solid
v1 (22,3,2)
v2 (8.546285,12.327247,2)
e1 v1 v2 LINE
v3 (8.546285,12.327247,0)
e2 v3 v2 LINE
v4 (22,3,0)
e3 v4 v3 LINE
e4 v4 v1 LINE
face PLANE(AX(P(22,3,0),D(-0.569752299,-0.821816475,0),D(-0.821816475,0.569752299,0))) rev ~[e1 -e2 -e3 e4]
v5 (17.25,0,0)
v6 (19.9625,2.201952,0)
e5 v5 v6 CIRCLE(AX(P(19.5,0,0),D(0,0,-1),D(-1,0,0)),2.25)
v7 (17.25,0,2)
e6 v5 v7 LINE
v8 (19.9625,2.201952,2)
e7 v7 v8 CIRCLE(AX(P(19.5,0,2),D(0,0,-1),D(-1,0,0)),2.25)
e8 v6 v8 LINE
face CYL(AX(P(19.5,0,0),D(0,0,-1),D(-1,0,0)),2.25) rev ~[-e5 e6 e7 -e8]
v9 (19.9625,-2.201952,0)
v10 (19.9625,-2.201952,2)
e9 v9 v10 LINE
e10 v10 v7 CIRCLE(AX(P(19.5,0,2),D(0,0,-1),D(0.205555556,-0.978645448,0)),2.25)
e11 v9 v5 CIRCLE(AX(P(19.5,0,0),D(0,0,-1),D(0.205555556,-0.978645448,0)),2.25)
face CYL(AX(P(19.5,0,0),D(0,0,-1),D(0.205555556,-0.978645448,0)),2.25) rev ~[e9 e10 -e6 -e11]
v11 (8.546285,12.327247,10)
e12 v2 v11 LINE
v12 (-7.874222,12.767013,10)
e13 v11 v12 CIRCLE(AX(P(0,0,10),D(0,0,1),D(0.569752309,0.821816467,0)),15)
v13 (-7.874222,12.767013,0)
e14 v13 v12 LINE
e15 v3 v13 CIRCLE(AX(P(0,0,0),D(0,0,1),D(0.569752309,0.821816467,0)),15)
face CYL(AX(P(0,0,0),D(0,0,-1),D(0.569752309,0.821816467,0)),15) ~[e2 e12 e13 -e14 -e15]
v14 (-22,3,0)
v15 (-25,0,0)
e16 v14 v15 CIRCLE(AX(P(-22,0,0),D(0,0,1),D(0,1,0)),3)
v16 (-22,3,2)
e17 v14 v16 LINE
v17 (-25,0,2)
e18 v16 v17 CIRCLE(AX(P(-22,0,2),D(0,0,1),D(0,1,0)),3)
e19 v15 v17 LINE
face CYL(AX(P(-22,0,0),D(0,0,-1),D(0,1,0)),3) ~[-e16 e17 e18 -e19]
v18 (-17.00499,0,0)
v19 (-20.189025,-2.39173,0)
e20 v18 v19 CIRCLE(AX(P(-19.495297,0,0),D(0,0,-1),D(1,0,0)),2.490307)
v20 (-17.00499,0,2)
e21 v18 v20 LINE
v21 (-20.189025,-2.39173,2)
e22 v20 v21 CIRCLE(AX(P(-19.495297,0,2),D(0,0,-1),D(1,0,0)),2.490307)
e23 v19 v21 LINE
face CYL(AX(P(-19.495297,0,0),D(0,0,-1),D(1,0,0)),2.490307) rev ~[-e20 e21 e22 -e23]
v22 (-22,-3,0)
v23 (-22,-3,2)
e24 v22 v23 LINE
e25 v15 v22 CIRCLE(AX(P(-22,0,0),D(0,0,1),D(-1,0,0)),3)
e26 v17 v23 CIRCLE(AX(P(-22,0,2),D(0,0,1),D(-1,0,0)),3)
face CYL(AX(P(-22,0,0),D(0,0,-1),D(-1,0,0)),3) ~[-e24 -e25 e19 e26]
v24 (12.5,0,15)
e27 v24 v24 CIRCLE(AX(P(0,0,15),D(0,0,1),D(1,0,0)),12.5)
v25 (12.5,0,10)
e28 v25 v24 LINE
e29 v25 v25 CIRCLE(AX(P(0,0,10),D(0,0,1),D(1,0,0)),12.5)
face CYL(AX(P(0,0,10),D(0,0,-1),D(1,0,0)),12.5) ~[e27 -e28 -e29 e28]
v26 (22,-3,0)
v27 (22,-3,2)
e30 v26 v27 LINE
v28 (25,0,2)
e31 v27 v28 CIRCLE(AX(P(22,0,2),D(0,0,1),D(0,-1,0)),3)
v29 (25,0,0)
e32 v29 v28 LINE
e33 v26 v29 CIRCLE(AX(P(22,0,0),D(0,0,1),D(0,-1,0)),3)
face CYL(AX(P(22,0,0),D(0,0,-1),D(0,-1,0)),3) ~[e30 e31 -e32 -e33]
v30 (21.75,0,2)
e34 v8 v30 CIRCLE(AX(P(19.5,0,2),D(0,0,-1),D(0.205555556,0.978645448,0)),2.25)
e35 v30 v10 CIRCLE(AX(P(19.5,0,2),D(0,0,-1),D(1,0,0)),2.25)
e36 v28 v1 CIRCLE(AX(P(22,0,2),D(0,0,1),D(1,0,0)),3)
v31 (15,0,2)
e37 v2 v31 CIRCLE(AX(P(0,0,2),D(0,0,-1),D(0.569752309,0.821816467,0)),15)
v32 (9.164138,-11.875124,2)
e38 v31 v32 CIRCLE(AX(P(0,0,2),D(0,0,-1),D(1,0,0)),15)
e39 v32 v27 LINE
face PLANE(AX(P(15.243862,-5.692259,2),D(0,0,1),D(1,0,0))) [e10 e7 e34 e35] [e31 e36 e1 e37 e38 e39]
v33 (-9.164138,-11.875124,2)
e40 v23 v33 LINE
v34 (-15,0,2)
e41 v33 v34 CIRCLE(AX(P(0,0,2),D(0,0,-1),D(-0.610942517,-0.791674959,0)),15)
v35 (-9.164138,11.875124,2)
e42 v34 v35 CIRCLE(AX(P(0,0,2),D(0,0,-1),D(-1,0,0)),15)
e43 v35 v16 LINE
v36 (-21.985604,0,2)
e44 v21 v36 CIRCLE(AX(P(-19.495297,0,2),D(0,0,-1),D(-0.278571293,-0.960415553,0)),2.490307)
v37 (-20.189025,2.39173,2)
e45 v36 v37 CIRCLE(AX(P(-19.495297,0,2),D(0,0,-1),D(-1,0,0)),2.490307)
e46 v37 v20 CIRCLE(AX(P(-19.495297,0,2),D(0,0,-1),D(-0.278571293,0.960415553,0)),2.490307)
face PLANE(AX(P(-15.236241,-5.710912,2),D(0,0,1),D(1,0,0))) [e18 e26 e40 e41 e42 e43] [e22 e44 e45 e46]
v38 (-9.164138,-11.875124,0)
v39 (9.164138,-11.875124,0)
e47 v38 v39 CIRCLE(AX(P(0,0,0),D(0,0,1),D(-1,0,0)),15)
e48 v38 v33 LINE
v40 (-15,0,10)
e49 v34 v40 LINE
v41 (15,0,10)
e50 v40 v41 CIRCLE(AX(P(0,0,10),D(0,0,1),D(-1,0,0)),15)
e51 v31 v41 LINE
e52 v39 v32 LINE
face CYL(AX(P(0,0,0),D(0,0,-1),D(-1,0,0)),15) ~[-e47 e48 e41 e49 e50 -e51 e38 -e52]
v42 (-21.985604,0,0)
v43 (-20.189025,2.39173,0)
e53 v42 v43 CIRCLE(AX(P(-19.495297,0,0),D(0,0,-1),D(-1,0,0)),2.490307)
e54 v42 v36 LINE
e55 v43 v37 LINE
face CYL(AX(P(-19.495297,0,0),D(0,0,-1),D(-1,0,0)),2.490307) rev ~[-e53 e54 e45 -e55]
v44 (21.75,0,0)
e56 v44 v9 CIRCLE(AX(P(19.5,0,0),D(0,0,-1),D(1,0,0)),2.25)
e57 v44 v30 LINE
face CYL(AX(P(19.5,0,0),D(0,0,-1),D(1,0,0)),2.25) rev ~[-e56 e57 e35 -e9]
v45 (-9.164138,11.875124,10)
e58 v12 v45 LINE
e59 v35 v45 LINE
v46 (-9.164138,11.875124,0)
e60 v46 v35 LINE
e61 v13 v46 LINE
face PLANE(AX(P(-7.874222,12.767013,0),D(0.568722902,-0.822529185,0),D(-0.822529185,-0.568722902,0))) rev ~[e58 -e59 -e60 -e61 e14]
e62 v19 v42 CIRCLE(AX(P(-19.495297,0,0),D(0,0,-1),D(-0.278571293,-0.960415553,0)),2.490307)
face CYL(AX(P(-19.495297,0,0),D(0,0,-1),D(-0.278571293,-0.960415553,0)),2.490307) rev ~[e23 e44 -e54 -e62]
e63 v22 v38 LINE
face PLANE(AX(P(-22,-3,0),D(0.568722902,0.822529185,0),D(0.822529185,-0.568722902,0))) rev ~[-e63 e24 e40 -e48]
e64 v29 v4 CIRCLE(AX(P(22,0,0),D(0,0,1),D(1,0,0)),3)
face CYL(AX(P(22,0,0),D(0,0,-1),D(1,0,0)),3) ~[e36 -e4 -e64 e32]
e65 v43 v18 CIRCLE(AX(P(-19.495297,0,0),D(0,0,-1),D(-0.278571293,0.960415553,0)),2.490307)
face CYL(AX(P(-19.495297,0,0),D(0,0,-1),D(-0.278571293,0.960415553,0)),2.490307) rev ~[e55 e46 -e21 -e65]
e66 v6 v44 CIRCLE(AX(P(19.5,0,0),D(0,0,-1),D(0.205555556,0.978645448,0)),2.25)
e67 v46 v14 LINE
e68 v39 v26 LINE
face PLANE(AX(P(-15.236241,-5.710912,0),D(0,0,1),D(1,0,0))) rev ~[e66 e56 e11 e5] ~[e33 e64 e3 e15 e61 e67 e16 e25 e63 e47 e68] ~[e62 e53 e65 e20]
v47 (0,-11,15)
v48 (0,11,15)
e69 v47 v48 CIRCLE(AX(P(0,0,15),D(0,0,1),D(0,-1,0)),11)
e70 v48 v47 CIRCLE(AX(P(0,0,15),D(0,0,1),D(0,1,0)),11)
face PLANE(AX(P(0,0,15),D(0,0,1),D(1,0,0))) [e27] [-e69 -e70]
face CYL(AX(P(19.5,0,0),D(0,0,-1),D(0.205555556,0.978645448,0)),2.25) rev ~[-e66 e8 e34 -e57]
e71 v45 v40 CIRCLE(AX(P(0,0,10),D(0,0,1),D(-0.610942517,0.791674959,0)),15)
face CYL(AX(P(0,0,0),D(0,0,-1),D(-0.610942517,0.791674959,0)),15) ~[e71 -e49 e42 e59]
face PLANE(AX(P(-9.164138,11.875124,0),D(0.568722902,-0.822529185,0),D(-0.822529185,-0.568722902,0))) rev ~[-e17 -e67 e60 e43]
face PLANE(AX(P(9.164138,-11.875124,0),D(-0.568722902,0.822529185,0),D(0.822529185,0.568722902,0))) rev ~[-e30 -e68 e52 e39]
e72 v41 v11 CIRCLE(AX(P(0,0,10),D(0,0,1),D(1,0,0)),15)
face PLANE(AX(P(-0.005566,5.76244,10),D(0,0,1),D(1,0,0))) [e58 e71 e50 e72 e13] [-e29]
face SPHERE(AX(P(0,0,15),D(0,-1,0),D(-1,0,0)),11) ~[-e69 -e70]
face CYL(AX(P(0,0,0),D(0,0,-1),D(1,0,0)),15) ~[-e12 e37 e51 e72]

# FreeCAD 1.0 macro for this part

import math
import FreeCAD as App
import Part
import Sketcher
from FreeCAD import Vector
Q = App.Units.Quantity

doc = App.newDocument("Part")
body = doc.addObject("PartDesign::Body", "Body")

sketch1 = body.newObject("Sketcher::SketchObject", "Sketch")
sketch1.AttachmentSupport = (doc.getObject("XY_Plane"), [""])
sketch1.MapMode = "FlatFace"
sketch1.addGeometry(Part.ArcOfCircle(Part.Circle(Vector(0, 0, 0), Vector(0, 0, 1), 15), math.radians(0), math.radians(55.267045)), False)
sketch1.addGeometry(Part.ArcOfCircle(Part.Circle(Vector(0, 0, 0), Vector(0, 0, 1), 15), math.radians(55.267045), math.radians(121.664751)), False)
sketch1.addGeometry(Part.LineSegment(Vector(-7.874222, 12.767013, 0), Vector(-9.164138, 11.875124, 0)), False)
sketch1.addGeometry(Part.ArcOfCircle(Part.Circle(Vector(0, 0, 0), Vector(0, 0, 1), 15), math.radians(127.657684), math.radians(180)), False)
sketch1.addGeometry(Part.ArcOfCircle(Part.Circle(Vector(0, 0, 0), Vector(0, 0, 1), 15), math.radians(180), math.radians(360)), False)
sketch1.addConstraint(Sketcher.Constraint("Tangent", 0, 2, 1, 1))
sketch1.addConstraint(Sketcher.Constraint("Coincident", 1, 2, 2, 1))
sketch1.addConstraint(Sketcher.Constraint("Coincident", 2, 2, 3, 1))
sketch1.addConstraint(Sketcher.Constraint("Tangent", 3, 2, 4, 1))
sketch1.addConstraint(Sketcher.Constraint("Tangent", 4, 2, 0, 1))
sketch1.addConstraint(Sketcher.Constraint("Coincident", 0, 3, -1, 1))
sketch1.addConstraint(Sketcher.Constraint("Equal", 0, 1))
sketch1.addConstraint(Sketcher.Constraint("Equal", 1, 3))
sketch1.addConstraint(Sketcher.Constraint("Equal", 3, 4))
sketch1.addConstraint(Sketcher.Constraint("PointOnObject", 3, 2, -1))
sketch1.addConstraint(Sketcher.Constraint("PointOnObject", 4, 2, -1))
sketch1.addConstraint(Sketcher.Constraint("Radius", 0, Q("15 mm")))
sketch1.addConstraint(Sketcher.Constraint("Distance", 2, Q("1.568231 mm")))
sketch1.addConstraint(Sketcher.Constraint("DistanceX", 1, 2, -1, 1, Q("7.874222 mm")))
sketch1.addConstraint(Sketcher.Constraint("DistanceX", -1, 1, 0, 2, Q("8.546285 mm")))
pad1 = body.newObject("PartDesign::Pad", "Pad")
pad1.Profile = sketch1
pad1.Length = 10

sketch2 = body.newObject("Sketcher::SketchObject", "Sketch001")
sketch2.AttachmentSupport = (doc.getObject("XY_Plane"), [""])
sketch2.MapMode = "FlatFace"
sketch2.AttachmentOffset = App.Placement(Vector(0, 0, 10), App.Rotation())
sketch2.addGeometry(Part.Circle(Vector(0, 0, 0), Vector(0, 0, 1), 12.5), False)
sketch2.addConstraint(Sketcher.Constraint("Coincident", 0, 3, -1, 1))
sketch2.addConstraint(Sketcher.Constraint("Diameter", 0, Q("25 mm")))
pad2 = body.newObject("PartDesign::Pad", "Pad001")
pad2.Profile = sketch2
pad2.Length = 5

sketch3 = body.newObject("Sketcher::SketchObject", "Sketch002")
sketch3.AttachmentSupport = (doc.getObject("XY_Plane"), [""])
sketch3.MapMode = "FlatFace"
sketch3.AttachmentOffset = App.Placement(Vector(0, 0, 15), App.Rotation())
sketch3.addGeometry(Part.LineSegment(Vector(0, -11, 0), Vector(0, 11, 0)), False)
sketch3.addGeometry(Part.ArcOfCircle(Part.Circle(Vector(0, 0, 0), Vector(0, 0, 1), 11), math.radians(90), math.radians(270)), False)
sketch3.addConstraint(Sketcher.Constraint("Coincident", 0, 1, 1, 2))
sketch3.addConstraint(Sketcher.Constraint("Coincident", 1, 1, 0, 2))
sketch3.addConstraint(Sketcher.Constraint("Vertical", 0))
sketch3.addConstraint(Sketcher.Constraint("Coincident", 1, 3, -1, 1))
sketch3.addConstraint(Sketcher.Constraint("PointOnObject", 0, 1, -2))
sketch3.addConstraint(Sketcher.Constraint("Radius", 1, Q("11 mm")))
revolution = body.newObject("PartDesign::Revolution", "Revolution")
revolution.Profile = sketch3
revolution.ReferenceAxis = (sketch3, ["V_Axis"])
revolution.Angle = 360

sketch4 = body.newObject("Sketcher::SketchObject", "Sketch003")
sketch4.AttachmentSupport = (doc.getObject("XY_Plane"), [""])
sketch4.MapMode = "FlatFace"
sketch4.addGeometry(Part.ArcOfCircle(Part.Circle(Vector(0, 0, 0), Vector(0, 0, 1), 15), math.radians(180), math.radians(232.342316)), False)
sketch4.addGeometry(Part.ArcOfCircle(Part.Circle(Vector(0, 0, 0), Vector(0, 0, 1), 15), math.radians(127.657684), math.radians(180)), False)
sketch4.addGeometry(Part.LineSegment(Vector(-9.164138, 11.875124, 0), Vector(-22, 3, 0)), False)
sketch4.addGeometry(Part.ArcOfCircle(Part.Circle(Vector(-22, 0, 0), Vector(0, 0, 1), 3), math.radians(90), math.radians(180)), False)
sketch4.addGeometry(Part.ArcOfCircle(Part.Circle(Vector(-22, 0, 0), Vector(0, 0, 1), 3), math.radians(180), math.radians(270)), False)
sketch4.addGeometry(Part.LineSegment(Vector(-22, -3, 0), Vector(-9.164138, -11.875124, 0)), False)
sketch4.addGeometry(Part.ArcOfCircle(Part.Circle(Vector(-19.495297, 0, 0), Vector(0, 0, 1), 2.490307), math.radians(106.174954), math.radians(180)), False)
sketch4.addGeometry(Part.ArcOfCircle(Part.Circle(Vector(-19.495297, 0, 0), Vector(0, 0, 1), 2.490307), math.radians(0), math.radians(106.174954)), False)
sketch4.addGeometry(Part.ArcOfCircle(Part.Circle(Vector(-19.495297, 0, 0), Vector(0, 0, 1), 2.490307), math.radians(-106.174954), math.radians(0)), False)
sketch4.addGeometry(Part.ArcOfCircle(Part.Circle(Vector(-19.495297, 0, 0), Vector(0, 0, 1), 2.490307), math.radians(180), math.radians(253.825046)), False)
sketch4.addGeometry(Part.ArcOfCircle(Part.Circle(Vector(0, 0, 0), Vector(0, 0, 1), 15), math.radians(-52.342316), math.radians(0)), False)
sketch4.addGeometry(Part.LineSegment(Vector(9.164138, -11.875124, 0), Vector(22, -3, 0)), False)
sketch4.addGeometry(Part.ArcOfCircle(Part.Circle(Vector(22, 0, 0), Vector(0, 0, 1), 3), math.radians(-90), math.radians(0)), False)
sketch4.addGeometry(Part.ArcOfCircle(Part.Circle(Vector(22, 0, 0), Vector(0, 0, 1), 3), math.radians(0), math.radians(90)), False)
sketch4.addGeometry(Part.LineSegment(Vector(22, 3, 0), Vector(8.546285, 12.327247, 0)), False)
sketch4.addGeometry(Part.ArcOfCircle(Part.Circle(Vector(0, 0, 0), Vector(0, 0, 1), 15), math.radians(0), math.radians(55.267045)), False)
sketch4.addGeometry(Part.ArcOfCircle(Part.Circle(Vector(19.5, 0, 0), Vector(0, 0, 1), 2.25), math.radians(-78.137977), math.radians(0)), False)
sketch4.addGeometry(Part.ArcOfCircle(Part.Circle(Vector(19.5, 0, 0), Vector(0, 0, 1), 2.25), math.radians(180), math.radians(281.862023)), False)
sketch4.addGeometry(Part.ArcOfCircle(Part.Circle(Vector(19.5, 0, 0), Vector(0, 0, 1), 2.25), math.radians(78.137977), math.radians(180)), False)
sketch4.addGeometry(Part.ArcOfCircle(Part.Circle(Vector(19.5, 0, 0), Vector(0, 0, 1), 2.25), math.radians(0), math.radians(78.137977)), False)
sketch4.addConstraint(Sketcher.Constraint("Tangent", 0, 1, 1, 2))
sketch4.addConstraint(Sketcher.Constraint("Coincident", 1, 1, 2, 1))
sketch4.addConstraint(Sketcher.Constraint("Coincident", 2, 2, 3, 1))
sketch4.addConstraint(Sketcher.Constraint("Tangent", 3, 2, 4, 1))
sketch4.addConstraint(Sketcher.Constraint("Coincident", 4, 2, 5, 1))
sketch4.addConstraint(Sketcher.Constraint("Coincident", 5, 2, 0, 2))
sketch4.addConstraint(Sketcher.Constraint("Tangent", 6, 1, 7, 2))
sketch4.addConstraint(Sketcher.Constraint("Tangent", 7, 1, 8, 2))
sketch4.addConstraint(Sketcher.Constraint("Tangent", 8, 1, 9, 2))
sketch4.addConstraint(Sketcher.Constraint("Tangent", 9, 1, 6, 2))
sketch4.addConstraint(Sketcher.Constraint("Coincident", 10, 1, 11, 1))
sketch4.addConstraint(Sketcher.Constraint("Coincident", 11, 2, 12, 1))
sketch4.addConstraint(Sketcher.Constraint("Tangent", 12, 2, 13, 1))
sketch4.addConstraint(Sketcher.Constraint("Coincident", 13, 2, 14, 1))
sketch4.addConstraint(Sketcher.Constraint("Tangent", 14, 2, 15, 2))
sketch4.addConstraint(Sketcher.Constraint("Tangent", 15, 1, 10, 2))
sketch4.addConstraint(Sketcher.Constraint("Tangent", 16, 1, 17, 2))
sketch4.addConstraint(Sketcher.Constraint("Tangent", 17, 1, 18, 2))
sketch4.addConstraint(Sketcher.Constraint("Tangent", 18, 1, 19, 2))
sketch4.addConstraint(Sketcher.Constraint("Tangent", 19, 1, 16, 2))
sketch4.addConstraint(Sketcher.Constraint("Coincident", 0, 3, -1, 1))
sketch4.addConstraint(Sketcher.Constraint("Coincident", 10, 3, -1, 1))
sketch4.addConstraint(Sketcher.Constraint("Equal", 0, 1))
sketch4.addConstraint(Sketcher.Constraint("Equal", 3, 4))
sketch4.addConstraint(Sketcher.Constraint("Equal", 6, 7))
sketch4.addConstraint(Sketcher.Constraint("Equal", 1, 10))
sketch4.addConstraint(Sketcher.Constraint("Equal", 4, 12))
sketch4.addConstraint(Sketcher.Constraint("Equal", 12, 13))
sketch4.addConstraint(Sketcher.Constraint("Equal", 10, 15))
sketch4.addConstraint(Sketcher.Constraint("Equal", 16, 17))
sketch4.addConstraint(Sketcher.Constraint("Symmetric", 3, 3, 12, 3, -1, 1))
sketch4.addConstraint(Sketcher.Constraint("Symmetric", 4, 2, 11, 2, -2))
sketch4.addConstraint(Sketcher.Constraint("Symmetric", 6, 1, 8, 1, -1))
sketch4.addConstraint(Sketcher.Constraint("Symmetric", 16, 1, 18, 1, -1))
sketch4.addConstraint(Sketcher.Constraint("PointOnObject", 0, 1, -1))
sketch4.addConstraint(Sketcher.Constraint("PointOnObject", 3, 2, -1))
sketch4.addConstraint(Sketcher.Constraint("PointOnObject", 7, 1, -1))
sketch4.addConstraint(Sketcher.Constraint("PointOnObject", 9, 1, -1))
sketch4.addConstraint(Sketcher.Constraint("PointOnObject", 12, 2, -1))
sketch4.addConstraint(Sketcher.Constraint("PointOnObject", 15, 1, -1))
sketch4.addConstraint(Sketcher.Constraint("PointOnObject", 17, 1, -1))
sketch4.addConstraint(Sketcher.Constraint("PointOnObject", 19, 1, -1))
sketch4.addConstraint(Sketcher.Constraint("Parallel", 2, 11))
sketch4.addConstraint(Sketcher.Constraint("Horizontal", 5, 2, 10, 1))
sketch4.addConstraint(Sketcher.Constraint("Vertical", 4, 3, 2, 2))
sketch4.addConstraint(Sketcher.Constraint("Vertical", 2, 2, 4, 2))
sketch4.addConstraint(Sketcher.Constraint("Vertical", 11, 2, 13, 2))
sketch4.addConstraint(Sketcher.Constraint("Radius", 0, Q("15 mm")))
sketch4.addConstraint(Sketcher.Constraint("Radius", 3, Q("3 mm")))
sketch4.addConstraint(Sketcher.Constraint("Radius", 16, Q("2.25 mm")))
sketch4.addConstraint(Sketcher.Constraint("DistanceX", 3, 3, -1, 1, Q("22 mm")))
sketch4.addConstraint(Sketcher.Constraint("DistanceX", -1, 1, 16, 3, Q("19.5 mm")))
sketch4.addConstraint(Sketcher.Constraint("Radius", 6, Q("2.490307 mm")))
sketch4.addConstraint(Sketcher.Constraint("DistanceX", -1, 1, 16, 1, Q("19.9625 mm")))
sketch4.addConstraint(Sketcher.Constraint("DistanceY", -1, 1, 6, 1, Q("2.39173 mm")))
sketch4.addConstraint(Sketcher.Constraint("DistanceX", 7, 1, -1, 1, Q("17.00499 mm")))
sketch4.addConstraint(Sketcher.Constraint("Distance", 2, Q("15.605358 mm")))
pad3 = body.newObject("PartDesign::Pad", "Pad002")
pad3.Profile = sketch4
pad3.Length = 2

doc.recompute()
